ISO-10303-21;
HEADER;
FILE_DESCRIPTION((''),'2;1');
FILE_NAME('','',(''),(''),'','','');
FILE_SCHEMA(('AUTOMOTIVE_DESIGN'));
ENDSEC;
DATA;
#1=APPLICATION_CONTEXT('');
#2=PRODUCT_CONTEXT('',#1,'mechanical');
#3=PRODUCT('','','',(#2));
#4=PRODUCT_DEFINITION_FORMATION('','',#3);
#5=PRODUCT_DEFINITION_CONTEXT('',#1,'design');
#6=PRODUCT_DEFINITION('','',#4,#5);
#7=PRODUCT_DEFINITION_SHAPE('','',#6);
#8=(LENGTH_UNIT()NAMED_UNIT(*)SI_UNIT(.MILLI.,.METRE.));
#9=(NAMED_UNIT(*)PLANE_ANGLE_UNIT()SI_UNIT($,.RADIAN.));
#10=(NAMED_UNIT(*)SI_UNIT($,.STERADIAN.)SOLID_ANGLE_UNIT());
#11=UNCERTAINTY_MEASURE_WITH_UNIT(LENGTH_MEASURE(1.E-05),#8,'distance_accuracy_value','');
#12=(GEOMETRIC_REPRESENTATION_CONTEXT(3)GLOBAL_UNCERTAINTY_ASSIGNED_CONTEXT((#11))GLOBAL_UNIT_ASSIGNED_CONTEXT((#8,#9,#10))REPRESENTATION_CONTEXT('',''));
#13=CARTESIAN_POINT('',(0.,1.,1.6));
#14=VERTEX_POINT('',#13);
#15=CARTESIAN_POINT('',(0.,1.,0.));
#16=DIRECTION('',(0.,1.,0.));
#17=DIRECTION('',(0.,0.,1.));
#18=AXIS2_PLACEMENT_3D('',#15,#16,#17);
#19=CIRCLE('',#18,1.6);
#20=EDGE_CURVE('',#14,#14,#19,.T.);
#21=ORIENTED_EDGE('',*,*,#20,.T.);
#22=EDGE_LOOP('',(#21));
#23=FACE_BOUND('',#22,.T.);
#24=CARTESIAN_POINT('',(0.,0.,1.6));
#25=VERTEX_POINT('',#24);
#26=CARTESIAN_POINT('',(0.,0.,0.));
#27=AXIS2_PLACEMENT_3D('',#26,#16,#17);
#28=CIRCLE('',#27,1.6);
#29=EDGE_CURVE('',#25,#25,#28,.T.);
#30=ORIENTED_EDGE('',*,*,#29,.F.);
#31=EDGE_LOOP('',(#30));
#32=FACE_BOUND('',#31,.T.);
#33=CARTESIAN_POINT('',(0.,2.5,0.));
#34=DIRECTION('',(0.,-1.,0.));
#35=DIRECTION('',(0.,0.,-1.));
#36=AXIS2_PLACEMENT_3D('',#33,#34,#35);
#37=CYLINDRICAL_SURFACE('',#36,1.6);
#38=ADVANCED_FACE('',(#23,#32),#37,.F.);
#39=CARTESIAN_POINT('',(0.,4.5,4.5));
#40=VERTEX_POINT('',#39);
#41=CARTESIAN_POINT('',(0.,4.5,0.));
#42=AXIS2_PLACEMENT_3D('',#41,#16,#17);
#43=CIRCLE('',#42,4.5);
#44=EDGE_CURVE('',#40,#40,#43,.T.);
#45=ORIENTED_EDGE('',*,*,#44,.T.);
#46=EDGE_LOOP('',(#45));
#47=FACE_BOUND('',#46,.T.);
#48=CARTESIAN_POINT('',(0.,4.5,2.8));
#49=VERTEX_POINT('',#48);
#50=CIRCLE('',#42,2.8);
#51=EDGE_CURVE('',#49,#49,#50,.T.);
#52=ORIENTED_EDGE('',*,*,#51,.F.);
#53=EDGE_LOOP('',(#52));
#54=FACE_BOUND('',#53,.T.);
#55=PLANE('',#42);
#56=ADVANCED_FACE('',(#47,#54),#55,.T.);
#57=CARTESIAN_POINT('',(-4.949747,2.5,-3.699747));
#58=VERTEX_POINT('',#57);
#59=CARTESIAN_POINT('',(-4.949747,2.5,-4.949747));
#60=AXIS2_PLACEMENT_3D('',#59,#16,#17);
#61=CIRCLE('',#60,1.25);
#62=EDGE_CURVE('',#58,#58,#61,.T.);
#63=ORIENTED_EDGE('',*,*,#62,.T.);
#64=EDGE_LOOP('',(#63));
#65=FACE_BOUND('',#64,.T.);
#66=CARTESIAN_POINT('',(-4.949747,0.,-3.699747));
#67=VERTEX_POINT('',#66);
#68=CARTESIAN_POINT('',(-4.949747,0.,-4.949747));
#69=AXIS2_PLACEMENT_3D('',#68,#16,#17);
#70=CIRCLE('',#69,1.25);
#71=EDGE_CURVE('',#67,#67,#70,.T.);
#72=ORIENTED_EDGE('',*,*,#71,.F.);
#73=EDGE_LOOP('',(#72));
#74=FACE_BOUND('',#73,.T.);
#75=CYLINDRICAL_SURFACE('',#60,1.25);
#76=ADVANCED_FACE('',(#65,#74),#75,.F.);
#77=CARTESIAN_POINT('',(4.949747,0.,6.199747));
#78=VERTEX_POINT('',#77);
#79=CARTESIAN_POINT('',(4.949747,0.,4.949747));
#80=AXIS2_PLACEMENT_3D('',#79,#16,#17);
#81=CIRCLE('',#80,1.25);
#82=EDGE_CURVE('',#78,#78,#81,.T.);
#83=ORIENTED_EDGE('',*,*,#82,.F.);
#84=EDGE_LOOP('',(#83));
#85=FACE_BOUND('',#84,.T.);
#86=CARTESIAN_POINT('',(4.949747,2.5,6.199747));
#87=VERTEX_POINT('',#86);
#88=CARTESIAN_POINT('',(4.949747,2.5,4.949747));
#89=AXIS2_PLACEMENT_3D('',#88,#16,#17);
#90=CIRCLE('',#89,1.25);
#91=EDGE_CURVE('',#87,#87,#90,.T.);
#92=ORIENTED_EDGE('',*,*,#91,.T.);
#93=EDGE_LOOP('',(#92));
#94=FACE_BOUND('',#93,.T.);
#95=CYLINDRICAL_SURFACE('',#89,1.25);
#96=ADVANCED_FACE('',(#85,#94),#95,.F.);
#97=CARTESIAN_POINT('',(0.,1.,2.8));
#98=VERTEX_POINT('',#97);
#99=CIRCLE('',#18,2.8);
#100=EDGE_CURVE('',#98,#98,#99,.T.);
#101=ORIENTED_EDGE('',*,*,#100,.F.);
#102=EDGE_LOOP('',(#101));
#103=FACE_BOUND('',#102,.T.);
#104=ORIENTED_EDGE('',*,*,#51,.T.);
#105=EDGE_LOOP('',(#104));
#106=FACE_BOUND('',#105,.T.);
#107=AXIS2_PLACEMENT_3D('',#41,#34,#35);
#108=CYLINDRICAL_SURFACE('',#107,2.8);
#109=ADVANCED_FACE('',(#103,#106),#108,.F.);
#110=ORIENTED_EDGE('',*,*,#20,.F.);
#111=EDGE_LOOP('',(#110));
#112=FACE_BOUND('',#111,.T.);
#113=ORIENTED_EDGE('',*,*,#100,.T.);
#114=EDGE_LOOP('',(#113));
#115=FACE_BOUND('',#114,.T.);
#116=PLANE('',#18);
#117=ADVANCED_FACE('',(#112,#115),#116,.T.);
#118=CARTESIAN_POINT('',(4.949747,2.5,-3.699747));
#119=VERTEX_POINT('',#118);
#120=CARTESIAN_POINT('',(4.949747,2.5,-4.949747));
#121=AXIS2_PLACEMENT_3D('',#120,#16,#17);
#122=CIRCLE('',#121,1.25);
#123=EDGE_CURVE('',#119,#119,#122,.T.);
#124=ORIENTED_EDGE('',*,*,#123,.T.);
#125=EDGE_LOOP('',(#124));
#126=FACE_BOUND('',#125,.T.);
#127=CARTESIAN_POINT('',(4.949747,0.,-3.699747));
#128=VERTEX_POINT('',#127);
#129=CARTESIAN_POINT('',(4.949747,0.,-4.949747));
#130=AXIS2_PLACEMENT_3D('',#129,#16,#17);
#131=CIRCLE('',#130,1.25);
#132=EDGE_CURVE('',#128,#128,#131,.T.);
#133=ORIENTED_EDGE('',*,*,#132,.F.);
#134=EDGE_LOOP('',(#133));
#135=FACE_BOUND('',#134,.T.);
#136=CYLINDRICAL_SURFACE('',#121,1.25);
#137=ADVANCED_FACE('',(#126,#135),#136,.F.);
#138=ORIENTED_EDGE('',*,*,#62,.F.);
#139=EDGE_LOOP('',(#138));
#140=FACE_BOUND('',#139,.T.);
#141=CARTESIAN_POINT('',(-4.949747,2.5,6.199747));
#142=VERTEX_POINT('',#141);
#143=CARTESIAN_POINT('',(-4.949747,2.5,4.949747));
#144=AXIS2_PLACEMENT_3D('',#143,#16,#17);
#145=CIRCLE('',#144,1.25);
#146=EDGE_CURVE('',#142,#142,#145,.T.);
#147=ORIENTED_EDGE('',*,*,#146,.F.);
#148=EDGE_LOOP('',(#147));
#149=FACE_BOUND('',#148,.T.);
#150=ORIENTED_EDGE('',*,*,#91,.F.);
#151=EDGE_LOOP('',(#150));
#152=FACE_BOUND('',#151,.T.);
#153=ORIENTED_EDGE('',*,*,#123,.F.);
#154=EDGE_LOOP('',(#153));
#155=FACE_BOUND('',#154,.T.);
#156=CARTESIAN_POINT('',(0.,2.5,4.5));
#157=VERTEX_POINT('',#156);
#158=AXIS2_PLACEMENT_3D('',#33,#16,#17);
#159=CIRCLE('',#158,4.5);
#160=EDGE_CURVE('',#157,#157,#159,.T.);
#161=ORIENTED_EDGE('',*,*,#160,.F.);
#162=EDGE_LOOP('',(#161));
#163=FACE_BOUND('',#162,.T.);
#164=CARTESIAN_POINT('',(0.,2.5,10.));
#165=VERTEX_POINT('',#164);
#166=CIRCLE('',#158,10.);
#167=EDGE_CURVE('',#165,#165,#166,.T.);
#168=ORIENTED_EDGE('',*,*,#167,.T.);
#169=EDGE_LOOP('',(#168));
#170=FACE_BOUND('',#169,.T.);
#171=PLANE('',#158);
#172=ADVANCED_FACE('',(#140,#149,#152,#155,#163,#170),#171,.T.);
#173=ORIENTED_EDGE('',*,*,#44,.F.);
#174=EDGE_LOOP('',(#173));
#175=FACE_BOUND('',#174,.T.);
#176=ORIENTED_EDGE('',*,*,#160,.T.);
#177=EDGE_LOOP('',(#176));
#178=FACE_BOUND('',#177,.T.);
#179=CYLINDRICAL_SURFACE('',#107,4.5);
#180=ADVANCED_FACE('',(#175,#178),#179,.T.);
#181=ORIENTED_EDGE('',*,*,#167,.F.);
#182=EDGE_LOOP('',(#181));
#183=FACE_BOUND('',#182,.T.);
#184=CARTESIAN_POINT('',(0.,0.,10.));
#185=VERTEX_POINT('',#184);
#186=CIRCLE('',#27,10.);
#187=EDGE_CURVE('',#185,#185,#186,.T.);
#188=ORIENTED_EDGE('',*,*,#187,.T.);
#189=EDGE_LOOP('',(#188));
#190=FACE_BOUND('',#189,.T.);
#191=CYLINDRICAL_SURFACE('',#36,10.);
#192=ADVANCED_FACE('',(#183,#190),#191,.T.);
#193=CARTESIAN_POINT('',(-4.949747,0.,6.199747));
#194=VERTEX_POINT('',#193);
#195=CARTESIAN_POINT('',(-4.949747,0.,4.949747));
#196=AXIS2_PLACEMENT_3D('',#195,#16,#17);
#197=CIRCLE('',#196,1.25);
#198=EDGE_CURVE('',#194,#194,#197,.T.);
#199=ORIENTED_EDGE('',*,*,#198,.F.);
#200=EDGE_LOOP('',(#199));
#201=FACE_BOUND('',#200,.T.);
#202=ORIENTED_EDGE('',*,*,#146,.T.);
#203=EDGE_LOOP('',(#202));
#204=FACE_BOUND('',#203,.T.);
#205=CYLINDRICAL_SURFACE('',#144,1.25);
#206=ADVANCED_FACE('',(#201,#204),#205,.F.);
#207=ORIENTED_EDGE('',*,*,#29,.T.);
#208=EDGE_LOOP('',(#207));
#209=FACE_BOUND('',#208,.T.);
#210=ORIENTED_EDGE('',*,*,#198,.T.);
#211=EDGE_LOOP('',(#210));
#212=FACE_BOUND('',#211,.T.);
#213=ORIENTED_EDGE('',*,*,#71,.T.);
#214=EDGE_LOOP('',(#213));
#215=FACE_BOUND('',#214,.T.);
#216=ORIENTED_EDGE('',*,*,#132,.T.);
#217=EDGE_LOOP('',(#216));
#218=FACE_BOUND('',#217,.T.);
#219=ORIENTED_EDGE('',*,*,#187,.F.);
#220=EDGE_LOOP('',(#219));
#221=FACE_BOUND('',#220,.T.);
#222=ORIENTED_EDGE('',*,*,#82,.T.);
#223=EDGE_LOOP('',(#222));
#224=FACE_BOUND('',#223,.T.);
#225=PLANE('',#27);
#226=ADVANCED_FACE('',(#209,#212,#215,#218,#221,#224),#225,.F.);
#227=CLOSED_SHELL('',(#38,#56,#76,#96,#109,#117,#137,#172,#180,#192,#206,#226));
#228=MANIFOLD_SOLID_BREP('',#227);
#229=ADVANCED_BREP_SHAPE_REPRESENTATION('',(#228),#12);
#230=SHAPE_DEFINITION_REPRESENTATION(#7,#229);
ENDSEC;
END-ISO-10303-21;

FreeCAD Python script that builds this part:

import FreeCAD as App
import Part
import Sketcher
Q = App.Units.Quantity

doc = App.newDocument("Part")
params = doc.addObject("Spreadsheet::Sheet", "Params")
for row, (alias, value) in enumerate([
    ("sketch1_diameter", "20 mm"),
    ("sketch1_diameter2", "3.2 mm"),
    ("pad1_length", "2.5 mm"),
    ("sketch2_diameter", "9 mm"),
    ("sketch2_diameter2", "5.6 mm"),
    ("pad2_length", "2 mm"),
    ("sketch3_diameter", "2.5 mm"),
    ("hole_diameter", "2.5 mm"),
    ("sketch4_diameter", "5.6 mm"),
    ("sketch4_diameter2", "3.2 mm"),
    ("pocket1_length", "1.5 mm"),
], start=1):
    params.set(f"A{row}", alias)
    params.set(f"B{row}", "=" + value)
    params.setAlias(f"B{row}", alias)

body = doc.addObject("PartDesign::Body", "Body")

sketch1 = doc.addObject("Sketcher::SketchObject", "Sketch")
body.addObject(sketch1)
sketch1.AttachmentSupport = (doc.XZ_Plane, [""])
sketch1.MapMode = "FlatFace"
sketch1.addGeometry([
    Part.Circle(App.Vector(0, 0, 0), App.Vector(0, 0, 1), 10),
    Part.Circle(App.Vector(0, 0, 0), App.Vector(0, 0, 1), 1.6),
], False)
sketch1.addConstraint([
    Sketcher.Constraint("Coincident", 0, 3, -1, 1),
    Sketcher.Constraint("Coincident", 1, 3, -1, 1),
    Sketcher.Constraint("Diameter", 0, Q("20 mm")),
    Sketcher.Constraint("Diameter", 1, Q("3.2 mm")),
])
sketch1.setExpression("Constraints[2]", "Params.sketch1_diameter")
sketch1.setExpression("Constraints[3]", "Params.sketch1_diameter2")
pad1 = doc.addObject("PartDesign::Pad", "Pad")
body.addObject(pad1)
pad1.Profile = sketch1
pad1.setExpression("Length", "Params.pad1_length")
pad1.Reversed = True

sketch2 = doc.addObject("Sketcher::SketchObject", "Sketch001")
body.addObject(sketch2)
sketch2.AttachmentSupport = (doc.XZ_Plane, [""])
sketch2.MapMode = "FlatFace"
sketch2.AttachmentOffset = App.Placement(App.Vector(0, 0, -2.5), App.Rotation())
sketch2.addGeometry([
    Part.Circle(App.Vector(0, 0, 0), App.Vector(0, 0, 1), 4.5),
    Part.Circle(App.Vector(0, 0, 0), App.Vector(0, 0, 1), 2.8),
], False)
sketch2.addConstraint([
    Sketcher.Constraint("Coincident", 0, 3, -1, 1),
    Sketcher.Constraint("Coincident", 1, 3, -1, 1),
    Sketcher.Constraint("Diameter", 0, Q("9 mm")),
    Sketcher.Constraint("Diameter", 1, Q("5.6 mm")),
])
sketch2.setExpression("Constraints[2]", "Params.sketch2_diameter")
sketch2.setExpression("Constraints[3]", "Params.sketch2_diameter2")
pad2 = doc.addObject("PartDesign::Pad", "Pad001")
body.addObject(pad2)
pad2.Profile = sketch2
pad2.setExpression("Length", "Params.pad2_length")
pad2.Reversed = True

sketch3 = doc.addObject("Sketcher::SketchObject", "Sketch002")
body.addObject(sketch3)
sketch3.AttachmentSupport = (doc.XZ_Plane, [""])
sketch3.MapMode = "FlatFace"
sketch3.AttachmentOffset = App.Placement(App.Vector(0, 0, -2.5), App.Rotation())
sketch3.addGeometry([
    Part.Circle(App.Vector(4.9, 4.9, 0), App.Vector(0, 0, 1), 1.2),
    Part.Circle(App.Vector(-4.9, 4.9, 0), App.Vector(0, 0, 1), 1.2),
    Part.Circle(App.Vector(-4.9, -4.9, 0), App.Vector(0, 0, 1), 1.2),
    Part.Circle(App.Vector(4.9, -4.9, 0), App.Vector(0, 0, 1), 1.2),
], False)
sketch3.addConstraint([
    Sketcher.Constraint("Equal", 0, 1),
    Sketcher.Constraint("Equal", 1, 2),
    Sketcher.Constraint("Equal", 2, 3),
    Sketcher.Constraint("Symmetric", 0, 3, 2, 3, -1, 1),
    Sketcher.Constraint("Symmetric", 1, 3, 3, 3, -1, 1),
    Sketcher.Constraint("Symmetric", 0, 3, 1, 3, -2),
    Sketcher.Constraint("Diameter", 0, Q("2.5 mm")),
    Sketcher.Constraint("DistanceX", -1, 1, 0, 3, Q("4.949747 mm")),
    Sketcher.Constraint("DistanceY", -1, 1, 0, 3, Q("4.949747 mm")),
])
sketch3.setExpression("Constraints[6]", "Params.sketch3_diameter")
doc.recompute()
hole = doc.addObject("PartDesign::Hole", "Hole")
body.addObject(hole)
hole.Profile = sketch3
hole.ThreadType = "None"
hole.setExpression("Diameter", "Params.hole_diameter")
hole.DepthType = "ThroughAll"
hole.Reversed = True

sketch4 = doc.addObject("Sketcher::SketchObject", "Sketch003")
body.addObject(sketch4)
sketch4.AttachmentSupport = (doc.XZ_Plane, [""])
sketch4.MapMode = "FlatFace"
sketch4.AttachmentOffset = App.Placement(App.Vector(0, 0, -1), App.Rotation())
sketch4.addGeometry([
    Part.Circle(App.Vector(0, 0, 0), App.Vector(0, 0, 1), 2.8),
    Part.Circle(App.Vector(0, 0, 0), App.Vector(0, 0, 1), 1.6),
], False)
sketch4.addConstraint([
    Sketcher.Constraint("Coincident", 0, 3, -1, 1),
    Sketcher.Constraint("Coincident", 1, 3, -1, 1),
    Sketcher.Constraint("Diameter", 0, Q("5.6 mm")),
    Sketcher.Constraint("Diameter", 1, Q("3.2 mm")),
])
sketch4.setExpression("Constraints[2]", "Params.sketch4_diameter")
sketch4.setExpression("Constraints[3]", "Params.sketch4_diameter2")
pocket1 = doc.addObject("PartDesign::Pocket", "Pocket")
body.addObject(pocket1)
pocket1.Profile = sketch4
pocket1.setExpression("Length", "Params.pocket1_length")

doc.recompute()
